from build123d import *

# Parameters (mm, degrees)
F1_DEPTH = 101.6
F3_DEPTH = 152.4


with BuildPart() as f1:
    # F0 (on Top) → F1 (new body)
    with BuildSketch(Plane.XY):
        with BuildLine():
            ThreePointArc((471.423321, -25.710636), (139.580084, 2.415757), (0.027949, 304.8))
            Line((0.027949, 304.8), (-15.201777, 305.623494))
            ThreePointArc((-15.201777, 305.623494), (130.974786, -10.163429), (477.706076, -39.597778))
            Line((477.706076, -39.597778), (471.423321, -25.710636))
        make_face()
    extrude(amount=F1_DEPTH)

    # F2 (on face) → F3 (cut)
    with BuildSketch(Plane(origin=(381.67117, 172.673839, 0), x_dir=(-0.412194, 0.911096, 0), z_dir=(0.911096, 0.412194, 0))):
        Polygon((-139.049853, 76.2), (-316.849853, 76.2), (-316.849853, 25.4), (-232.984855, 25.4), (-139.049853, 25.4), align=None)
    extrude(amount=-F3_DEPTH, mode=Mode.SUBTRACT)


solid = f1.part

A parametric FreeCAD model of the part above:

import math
import FreeCAD as App
import Part
import Sketcher
from FreeCAD import Vector
Q = App.Units.Quantity

doc = App.newDocument("Part")
params = doc.addObject("Spreadsheet::Sheet", "Params")
for row, (alias, value) in enumerate([
    ("pad1_length", "4 in"),
    ("sketch2_width", "7 in"),
    ("sketch2_height", "2 in"),
    ("pocket1_length", "6 in"),
], start=1):
    params.set(f"A{row}", alias)
    params.set(f"B{row}", "=" + value)
    params.setAlias(f"B{row}", alias)

body = doc.addObject("PartDesign::Body", "Body")

# Sketch on XY plane
sketch1 = body.newObject("Sketcher::SketchObject", "Sketch")
sketch1.AttachmentSupport = (doc.getObject("XY_Plane"), [""])
sketch1.MapMode = "FlatFace"
sketch1.addGeometry(Part.ArcOfCircle(Part.Circle(Vector(330, 274, 0), Vector(0, 0, 1), 331), math.radians(175), math.radians(295)), False)
sketch1.addGeometry(Part.LineSegment(Vector(0, 305, 0), Vector(-15, 306, 0)), False)
sketch1.addGeometry(Part.ArcOfCircle(Part.Circle(Vector(330, 274, 0), Vector(0, 0, 1), 346), math.radians(175), math.radians(295)), False)
sketch1.addGeometry(Part.LineSegment(Vector(478, -40, 0), Vector(471, -26, 0)), False)
sketch1.addConstraint(Sketcher.Constraint("Coincident", 0, 1, 1, 1))
sketch1.addConstraint(Sketcher.Constraint("Coincident", 1, 2, 2, 1))
sketch1.addConstraint(Sketcher.Constraint("Coincident", 2, 2, 3, 1))
sketch1.addConstraint(Sketcher.Constraint("Coincident", 3, 2, 0, 2))
sketch1.addConstraint(Sketcher.Constraint("Coincident", 2, 3, 0, 3))
sketch1.addConstraint(Sketcher.Constraint("DistanceY", -1, 1, 0, 1, Q("12 in")))
sketch1.addConstraint(Sketcher.Constraint("Radius", 0, Q("13.0364 in")))
sketch1.addConstraint(Sketcher.Constraint("Radius", 2, Q("13.6364 in")))
sketch1.addConstraint(Sketcher.Constraint("DistanceX", 2, 3, 2, 2, 148.032501))
sketch1.addConstraint(Sketcher.Constraint("DistanceX", 1, 2, 3, 2, 486.625098))
sketch1.addConstraint(Sketcher.Constraint("DistanceY", -1, 1, 2, 3, 273.539231))
sketch1.addConstraint(Sketcher.Constraint("DistanceX", -1, 1, 0, 1, 0.027949))
sketch1.addConstraint(Sketcher.Constraint("DistanceX", -1, 1, 3, 2, 471.423321))
pad1 = body.newObject("PartDesign::Pad", "Pad")
pad1.Profile = sketch1
pad1.setExpression("Length", "Params.pad1_length")

# Sketch on an angled plane
sketch2 = body.newObject("Sketcher::SketchObject", "Sketch001")
sketch2.Placement = App.Placement(Vector(381.67117, 172.673839, 0), App.Rotation(Vector(-0.412194038, 0.911096084, 0), Vector(0, 0, 0.999999999), Vector(0.911096084, 0.412194038, 0), "ZXY"))
sketch2.addGeometry(Part.LineSegment(Vector(-139, 76, 0), Vector(-317, 76, 0)), False)
sketch2.addGeometry(Part.LineSegment(Vector(-317, 76, 0), Vector(-317, 25, 0)), False)
sketch2.addGeometry(Part.LineSegment(Vector(-317, 25, 0), Vector(-139, 25, 0)), False)
sketch2.addGeometry(Part.LineSegment(Vector(-139, 25, 0), Vector(-139, 76, 0)), False)
sketch2.addConstraint(Sketcher.Constraint("Coincident", 0, 2, 1, 1))
sketch2.addConstraint(Sketcher.Constraint("Coincident", 1, 2, 2, 1))
sketch2.addConstraint(Sketcher.Constraint("Coincident", 2, 2, 3, 1))
sketch2.addConstraint(Sketcher.Constraint("Coincident", 3, 2, 0, 1))
sketch2.addConstraint(Sketcher.Constraint("Horizontal", 0))
sketch2.addConstraint(Sketcher.Constraint("Vertical", 1))
sketch2.addConstraint(Sketcher.Constraint("Horizontal", 2))
sketch2.addConstraint(Sketcher.Constraint("Vertical", 3))
sketch2.addConstraint(Sketcher.Constraint("DistanceX", 0, 2, 0, 1, Q("7 in")))
sketch2.addConstraint(Sketcher.Constraint("DistanceY", 1, 2, 1, 1, Q("2 in")))
sketch2.addConstraint(Sketcher.Constraint("DistanceY", -1, 1, 0, 2, Q("3 in")))
sketch2.addConstraint(Sketcher.Constraint("DistanceX", 0, 2, -1, 1, 316.849853))
sketch2.setExpression("Constraints[8]", "Params.sketch2_width")
sketch2.setExpression("Constraints[9]", "Params.sketch2_height")
pocket1 = body.newObject("PartDesign::Pocket", "Pocket")
pocket1.Profile = sketch2
pocket1.setExpression("Length", "Params.pocket1_length")

doc.recompute()
